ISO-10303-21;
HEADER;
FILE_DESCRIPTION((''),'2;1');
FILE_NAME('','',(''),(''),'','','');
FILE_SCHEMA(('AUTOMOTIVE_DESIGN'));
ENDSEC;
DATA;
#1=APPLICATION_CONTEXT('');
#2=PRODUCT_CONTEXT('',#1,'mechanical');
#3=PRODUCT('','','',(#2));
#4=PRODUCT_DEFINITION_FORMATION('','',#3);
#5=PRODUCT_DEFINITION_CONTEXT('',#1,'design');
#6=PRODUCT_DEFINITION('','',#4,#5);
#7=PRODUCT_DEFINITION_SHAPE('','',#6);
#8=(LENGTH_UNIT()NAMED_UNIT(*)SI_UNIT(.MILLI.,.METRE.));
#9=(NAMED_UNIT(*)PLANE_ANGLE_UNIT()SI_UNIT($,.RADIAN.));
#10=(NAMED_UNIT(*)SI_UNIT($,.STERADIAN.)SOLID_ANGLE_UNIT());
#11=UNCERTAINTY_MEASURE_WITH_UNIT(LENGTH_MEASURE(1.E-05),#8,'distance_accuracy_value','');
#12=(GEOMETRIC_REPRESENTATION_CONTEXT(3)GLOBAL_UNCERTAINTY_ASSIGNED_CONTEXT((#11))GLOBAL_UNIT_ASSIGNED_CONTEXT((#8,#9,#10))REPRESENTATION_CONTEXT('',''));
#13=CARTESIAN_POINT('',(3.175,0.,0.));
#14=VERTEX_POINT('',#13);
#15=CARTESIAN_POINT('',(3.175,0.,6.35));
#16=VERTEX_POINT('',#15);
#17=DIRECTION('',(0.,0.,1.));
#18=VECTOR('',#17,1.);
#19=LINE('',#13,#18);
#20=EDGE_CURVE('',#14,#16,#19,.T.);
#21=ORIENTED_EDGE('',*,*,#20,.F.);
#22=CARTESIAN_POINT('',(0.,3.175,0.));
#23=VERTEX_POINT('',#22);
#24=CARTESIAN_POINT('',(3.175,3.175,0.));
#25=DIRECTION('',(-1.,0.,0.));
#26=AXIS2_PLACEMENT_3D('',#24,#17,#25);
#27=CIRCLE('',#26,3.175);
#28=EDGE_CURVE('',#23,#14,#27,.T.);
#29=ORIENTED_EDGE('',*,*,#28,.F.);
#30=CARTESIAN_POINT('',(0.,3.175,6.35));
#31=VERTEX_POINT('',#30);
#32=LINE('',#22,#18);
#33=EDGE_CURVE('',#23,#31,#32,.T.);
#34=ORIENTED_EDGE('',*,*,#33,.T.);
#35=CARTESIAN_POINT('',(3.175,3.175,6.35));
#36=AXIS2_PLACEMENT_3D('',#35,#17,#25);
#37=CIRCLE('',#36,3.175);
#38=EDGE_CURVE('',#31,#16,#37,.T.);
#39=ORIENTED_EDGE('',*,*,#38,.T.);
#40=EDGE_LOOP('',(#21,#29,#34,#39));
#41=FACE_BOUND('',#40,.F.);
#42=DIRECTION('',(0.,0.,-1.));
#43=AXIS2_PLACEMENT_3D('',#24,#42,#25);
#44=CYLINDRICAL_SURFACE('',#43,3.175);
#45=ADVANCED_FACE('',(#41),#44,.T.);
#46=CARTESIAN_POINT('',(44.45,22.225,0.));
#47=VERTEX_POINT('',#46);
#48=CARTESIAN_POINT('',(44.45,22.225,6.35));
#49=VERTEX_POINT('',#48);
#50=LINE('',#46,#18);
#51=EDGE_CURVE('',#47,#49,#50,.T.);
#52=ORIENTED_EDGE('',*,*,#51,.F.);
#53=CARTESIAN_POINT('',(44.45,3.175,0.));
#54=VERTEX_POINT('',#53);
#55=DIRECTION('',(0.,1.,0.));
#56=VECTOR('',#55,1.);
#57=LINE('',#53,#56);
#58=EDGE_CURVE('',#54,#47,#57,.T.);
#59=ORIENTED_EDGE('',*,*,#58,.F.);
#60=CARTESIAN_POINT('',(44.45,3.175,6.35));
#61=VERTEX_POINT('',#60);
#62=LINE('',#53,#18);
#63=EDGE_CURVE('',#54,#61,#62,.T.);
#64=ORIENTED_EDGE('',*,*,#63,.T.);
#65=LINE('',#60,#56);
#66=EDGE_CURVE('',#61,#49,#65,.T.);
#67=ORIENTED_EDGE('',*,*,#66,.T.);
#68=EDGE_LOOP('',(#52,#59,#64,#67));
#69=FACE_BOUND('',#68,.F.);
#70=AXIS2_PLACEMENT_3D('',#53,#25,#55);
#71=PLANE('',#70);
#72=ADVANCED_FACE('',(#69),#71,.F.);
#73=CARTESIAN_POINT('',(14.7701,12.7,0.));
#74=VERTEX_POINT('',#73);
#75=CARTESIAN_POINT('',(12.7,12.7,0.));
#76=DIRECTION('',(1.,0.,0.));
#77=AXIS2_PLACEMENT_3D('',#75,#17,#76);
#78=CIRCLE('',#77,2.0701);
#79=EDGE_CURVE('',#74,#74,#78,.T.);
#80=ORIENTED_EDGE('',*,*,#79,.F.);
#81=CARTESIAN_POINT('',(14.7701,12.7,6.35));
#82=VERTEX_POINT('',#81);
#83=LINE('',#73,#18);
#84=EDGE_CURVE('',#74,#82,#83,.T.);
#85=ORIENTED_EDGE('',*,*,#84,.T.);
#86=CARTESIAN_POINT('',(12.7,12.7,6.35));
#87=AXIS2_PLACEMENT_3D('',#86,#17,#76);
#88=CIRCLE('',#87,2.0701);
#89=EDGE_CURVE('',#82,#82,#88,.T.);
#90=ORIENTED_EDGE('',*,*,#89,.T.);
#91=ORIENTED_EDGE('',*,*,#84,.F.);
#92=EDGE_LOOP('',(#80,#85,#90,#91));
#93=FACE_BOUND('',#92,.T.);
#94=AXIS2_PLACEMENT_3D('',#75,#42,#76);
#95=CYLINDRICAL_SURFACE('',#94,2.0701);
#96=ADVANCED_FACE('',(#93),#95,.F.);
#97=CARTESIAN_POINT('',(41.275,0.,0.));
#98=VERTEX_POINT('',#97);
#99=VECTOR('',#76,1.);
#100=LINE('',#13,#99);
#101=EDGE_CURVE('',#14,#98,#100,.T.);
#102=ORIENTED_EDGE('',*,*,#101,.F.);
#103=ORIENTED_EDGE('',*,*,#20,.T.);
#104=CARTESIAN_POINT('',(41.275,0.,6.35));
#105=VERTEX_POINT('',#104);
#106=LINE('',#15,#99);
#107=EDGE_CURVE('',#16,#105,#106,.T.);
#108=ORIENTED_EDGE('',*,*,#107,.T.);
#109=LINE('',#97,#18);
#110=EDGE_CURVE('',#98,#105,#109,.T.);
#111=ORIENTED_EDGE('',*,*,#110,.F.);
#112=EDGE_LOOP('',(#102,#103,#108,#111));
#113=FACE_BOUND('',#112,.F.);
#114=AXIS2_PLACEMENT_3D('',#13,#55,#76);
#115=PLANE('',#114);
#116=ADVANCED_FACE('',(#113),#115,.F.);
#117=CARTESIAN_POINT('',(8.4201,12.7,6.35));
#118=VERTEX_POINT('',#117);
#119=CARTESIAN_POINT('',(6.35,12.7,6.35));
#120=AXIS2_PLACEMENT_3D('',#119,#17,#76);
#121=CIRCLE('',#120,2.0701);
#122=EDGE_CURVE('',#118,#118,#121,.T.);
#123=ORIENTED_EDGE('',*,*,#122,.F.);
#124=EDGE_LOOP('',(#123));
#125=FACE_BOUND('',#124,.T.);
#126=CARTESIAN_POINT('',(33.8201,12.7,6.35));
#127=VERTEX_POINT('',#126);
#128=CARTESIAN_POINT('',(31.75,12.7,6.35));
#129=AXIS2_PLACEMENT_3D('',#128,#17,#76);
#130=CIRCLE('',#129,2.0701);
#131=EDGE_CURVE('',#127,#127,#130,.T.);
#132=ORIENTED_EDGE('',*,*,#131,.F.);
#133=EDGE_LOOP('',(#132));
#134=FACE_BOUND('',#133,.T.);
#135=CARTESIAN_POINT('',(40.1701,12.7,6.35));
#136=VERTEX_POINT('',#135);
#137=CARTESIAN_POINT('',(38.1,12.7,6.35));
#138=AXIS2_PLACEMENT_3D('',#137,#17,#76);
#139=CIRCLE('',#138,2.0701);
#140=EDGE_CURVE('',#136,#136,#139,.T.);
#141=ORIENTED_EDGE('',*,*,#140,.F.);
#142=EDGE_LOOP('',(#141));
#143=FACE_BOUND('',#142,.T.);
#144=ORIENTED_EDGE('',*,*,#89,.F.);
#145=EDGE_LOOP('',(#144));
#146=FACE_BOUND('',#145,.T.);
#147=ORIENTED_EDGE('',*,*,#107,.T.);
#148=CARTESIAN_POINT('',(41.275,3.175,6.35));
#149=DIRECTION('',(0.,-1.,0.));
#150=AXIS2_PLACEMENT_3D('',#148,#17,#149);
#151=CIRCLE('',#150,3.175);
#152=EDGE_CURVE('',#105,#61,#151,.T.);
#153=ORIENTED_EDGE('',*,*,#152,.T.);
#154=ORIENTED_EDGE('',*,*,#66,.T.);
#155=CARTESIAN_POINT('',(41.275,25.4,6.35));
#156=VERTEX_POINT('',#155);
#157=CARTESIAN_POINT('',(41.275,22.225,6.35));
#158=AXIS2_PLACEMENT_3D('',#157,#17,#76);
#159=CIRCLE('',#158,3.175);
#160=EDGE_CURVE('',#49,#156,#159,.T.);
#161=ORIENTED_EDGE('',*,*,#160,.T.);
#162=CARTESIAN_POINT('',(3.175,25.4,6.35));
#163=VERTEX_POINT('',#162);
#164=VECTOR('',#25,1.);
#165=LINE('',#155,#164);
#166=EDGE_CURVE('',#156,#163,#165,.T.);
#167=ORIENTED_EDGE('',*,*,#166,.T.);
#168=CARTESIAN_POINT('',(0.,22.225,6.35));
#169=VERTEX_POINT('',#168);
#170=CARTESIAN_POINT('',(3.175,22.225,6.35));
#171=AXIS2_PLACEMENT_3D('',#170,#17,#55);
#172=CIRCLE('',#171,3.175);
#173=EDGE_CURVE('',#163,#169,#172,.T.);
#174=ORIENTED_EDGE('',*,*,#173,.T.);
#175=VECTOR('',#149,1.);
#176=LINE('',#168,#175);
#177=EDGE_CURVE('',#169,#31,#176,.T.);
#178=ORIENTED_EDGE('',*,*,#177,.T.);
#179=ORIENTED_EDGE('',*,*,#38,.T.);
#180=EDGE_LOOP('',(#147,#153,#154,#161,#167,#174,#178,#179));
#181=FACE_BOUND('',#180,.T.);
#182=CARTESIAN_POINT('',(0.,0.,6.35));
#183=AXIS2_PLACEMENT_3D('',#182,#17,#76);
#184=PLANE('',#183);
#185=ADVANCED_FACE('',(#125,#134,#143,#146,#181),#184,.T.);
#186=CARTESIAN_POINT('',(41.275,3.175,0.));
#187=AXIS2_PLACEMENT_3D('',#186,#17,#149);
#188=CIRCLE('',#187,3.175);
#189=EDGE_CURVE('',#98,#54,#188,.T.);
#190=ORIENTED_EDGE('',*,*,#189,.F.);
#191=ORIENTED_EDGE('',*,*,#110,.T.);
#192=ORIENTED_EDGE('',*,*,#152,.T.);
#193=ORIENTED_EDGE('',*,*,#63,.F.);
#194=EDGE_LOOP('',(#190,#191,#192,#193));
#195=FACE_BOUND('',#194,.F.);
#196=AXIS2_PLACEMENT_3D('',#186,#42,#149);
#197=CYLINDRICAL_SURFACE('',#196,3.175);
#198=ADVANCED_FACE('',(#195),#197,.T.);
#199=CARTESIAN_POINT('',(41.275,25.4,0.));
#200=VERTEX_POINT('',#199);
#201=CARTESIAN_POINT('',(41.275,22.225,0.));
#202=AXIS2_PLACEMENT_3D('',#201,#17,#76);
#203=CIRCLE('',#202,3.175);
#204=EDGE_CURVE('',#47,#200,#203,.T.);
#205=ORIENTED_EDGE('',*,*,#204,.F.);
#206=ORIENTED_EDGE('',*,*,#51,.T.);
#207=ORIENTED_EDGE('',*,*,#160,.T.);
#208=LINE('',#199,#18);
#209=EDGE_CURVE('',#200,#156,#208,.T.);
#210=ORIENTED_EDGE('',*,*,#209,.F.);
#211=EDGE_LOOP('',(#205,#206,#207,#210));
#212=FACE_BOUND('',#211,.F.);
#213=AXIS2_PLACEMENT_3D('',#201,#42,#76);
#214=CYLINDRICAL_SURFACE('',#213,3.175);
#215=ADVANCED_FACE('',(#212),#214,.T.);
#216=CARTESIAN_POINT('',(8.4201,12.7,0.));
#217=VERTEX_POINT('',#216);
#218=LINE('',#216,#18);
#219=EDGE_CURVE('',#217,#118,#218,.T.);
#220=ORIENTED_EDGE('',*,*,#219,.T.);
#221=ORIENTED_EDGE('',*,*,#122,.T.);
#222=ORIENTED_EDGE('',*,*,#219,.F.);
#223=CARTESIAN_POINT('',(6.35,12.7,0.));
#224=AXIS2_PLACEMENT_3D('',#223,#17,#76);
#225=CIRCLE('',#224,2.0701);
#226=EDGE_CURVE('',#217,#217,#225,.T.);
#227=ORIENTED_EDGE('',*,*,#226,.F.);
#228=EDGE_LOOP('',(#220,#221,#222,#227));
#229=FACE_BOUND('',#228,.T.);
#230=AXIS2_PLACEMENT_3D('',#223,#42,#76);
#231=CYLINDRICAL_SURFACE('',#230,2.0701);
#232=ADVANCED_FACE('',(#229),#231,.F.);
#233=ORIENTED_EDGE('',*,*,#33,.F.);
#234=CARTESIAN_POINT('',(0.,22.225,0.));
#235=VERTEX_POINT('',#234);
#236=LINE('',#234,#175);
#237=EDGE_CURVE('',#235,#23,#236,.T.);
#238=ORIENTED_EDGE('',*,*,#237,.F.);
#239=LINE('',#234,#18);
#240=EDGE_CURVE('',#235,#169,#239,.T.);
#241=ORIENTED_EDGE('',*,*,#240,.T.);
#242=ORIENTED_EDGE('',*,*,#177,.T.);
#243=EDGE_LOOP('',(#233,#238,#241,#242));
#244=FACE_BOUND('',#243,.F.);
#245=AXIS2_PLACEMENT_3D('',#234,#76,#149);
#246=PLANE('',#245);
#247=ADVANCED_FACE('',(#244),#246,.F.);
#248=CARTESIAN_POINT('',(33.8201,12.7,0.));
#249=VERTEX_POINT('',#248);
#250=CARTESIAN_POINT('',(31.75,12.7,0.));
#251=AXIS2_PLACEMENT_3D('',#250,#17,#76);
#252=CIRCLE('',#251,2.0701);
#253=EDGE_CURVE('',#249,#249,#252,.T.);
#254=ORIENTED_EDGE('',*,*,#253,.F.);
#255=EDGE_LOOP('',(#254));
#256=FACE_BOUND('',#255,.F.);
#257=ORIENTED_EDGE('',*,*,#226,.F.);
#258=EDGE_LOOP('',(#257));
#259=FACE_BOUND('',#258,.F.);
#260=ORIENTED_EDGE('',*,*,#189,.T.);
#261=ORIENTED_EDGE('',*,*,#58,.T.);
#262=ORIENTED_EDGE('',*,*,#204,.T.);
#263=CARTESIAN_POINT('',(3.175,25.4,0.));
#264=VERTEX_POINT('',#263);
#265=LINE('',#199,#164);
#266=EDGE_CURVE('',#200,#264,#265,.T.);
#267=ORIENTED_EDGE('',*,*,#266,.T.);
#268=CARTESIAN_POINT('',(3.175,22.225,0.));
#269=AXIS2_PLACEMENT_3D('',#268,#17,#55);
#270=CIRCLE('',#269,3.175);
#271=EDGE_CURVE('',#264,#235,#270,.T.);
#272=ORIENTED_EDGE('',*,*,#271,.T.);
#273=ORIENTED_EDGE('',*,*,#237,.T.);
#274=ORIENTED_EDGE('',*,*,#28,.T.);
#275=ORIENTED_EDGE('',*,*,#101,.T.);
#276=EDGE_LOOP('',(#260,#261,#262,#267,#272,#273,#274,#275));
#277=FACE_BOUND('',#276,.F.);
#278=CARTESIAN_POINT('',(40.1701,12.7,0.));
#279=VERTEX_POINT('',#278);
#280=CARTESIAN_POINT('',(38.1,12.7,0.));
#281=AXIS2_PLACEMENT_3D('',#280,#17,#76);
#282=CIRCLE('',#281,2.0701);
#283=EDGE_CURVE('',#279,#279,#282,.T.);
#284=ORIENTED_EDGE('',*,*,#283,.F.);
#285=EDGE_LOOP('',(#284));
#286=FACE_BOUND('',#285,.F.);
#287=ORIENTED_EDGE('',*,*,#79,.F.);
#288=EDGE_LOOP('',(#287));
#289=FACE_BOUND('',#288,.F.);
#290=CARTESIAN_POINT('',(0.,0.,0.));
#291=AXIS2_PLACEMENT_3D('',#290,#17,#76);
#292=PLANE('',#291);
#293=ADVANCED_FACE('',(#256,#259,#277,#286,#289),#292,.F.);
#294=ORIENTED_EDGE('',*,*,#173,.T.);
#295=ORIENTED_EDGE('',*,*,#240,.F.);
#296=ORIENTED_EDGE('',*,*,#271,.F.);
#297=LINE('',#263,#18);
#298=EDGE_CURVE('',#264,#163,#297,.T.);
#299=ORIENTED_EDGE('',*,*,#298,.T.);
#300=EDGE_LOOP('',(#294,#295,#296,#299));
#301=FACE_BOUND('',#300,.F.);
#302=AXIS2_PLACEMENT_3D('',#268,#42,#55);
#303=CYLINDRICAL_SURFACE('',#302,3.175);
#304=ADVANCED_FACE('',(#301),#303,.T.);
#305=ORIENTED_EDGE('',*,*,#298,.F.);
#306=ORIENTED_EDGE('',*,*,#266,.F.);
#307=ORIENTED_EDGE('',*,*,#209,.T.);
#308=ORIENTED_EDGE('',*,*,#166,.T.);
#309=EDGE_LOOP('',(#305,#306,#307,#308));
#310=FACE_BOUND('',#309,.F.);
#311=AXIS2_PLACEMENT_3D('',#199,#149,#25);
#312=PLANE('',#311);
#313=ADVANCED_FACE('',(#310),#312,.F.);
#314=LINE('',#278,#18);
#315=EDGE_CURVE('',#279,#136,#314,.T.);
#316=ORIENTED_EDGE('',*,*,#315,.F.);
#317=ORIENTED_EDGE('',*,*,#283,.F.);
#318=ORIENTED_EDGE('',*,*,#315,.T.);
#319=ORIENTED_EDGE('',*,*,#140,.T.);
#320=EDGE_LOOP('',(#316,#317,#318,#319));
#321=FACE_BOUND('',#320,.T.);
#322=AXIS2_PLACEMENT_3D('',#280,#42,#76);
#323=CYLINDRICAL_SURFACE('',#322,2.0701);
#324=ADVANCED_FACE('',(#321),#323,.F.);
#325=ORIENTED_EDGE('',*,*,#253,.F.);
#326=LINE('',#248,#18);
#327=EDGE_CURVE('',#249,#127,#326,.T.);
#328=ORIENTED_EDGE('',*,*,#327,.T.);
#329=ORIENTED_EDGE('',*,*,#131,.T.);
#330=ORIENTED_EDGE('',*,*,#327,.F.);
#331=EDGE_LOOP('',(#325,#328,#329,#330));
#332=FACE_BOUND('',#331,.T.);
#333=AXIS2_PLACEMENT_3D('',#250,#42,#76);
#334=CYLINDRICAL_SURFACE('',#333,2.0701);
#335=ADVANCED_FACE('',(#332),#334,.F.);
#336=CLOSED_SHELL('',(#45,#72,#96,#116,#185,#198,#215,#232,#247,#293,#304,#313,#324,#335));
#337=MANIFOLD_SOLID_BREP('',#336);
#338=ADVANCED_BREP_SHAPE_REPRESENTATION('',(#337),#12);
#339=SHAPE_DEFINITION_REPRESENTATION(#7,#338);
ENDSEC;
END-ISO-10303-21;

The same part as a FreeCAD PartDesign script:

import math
import FreeCAD as App
import Part
import Sketcher

V = App.Vector
Q = App.Units.Quantity

doc = App.newDocument("Part")
body = doc.addObject("PartDesign::Body", "Body")

# Sketch on XY plane
sketch1 = doc.addObject("Sketcher::SketchObject", "Sketch")
body.addObject(sketch1)
sketch1.AttachmentSupport = (doc.XY_Plane, [""])
sketch1.MapMode = "FlatFace"
sketch1.addGeometry([
    Part.ArcOfCircle(Part.Circle(V(3.2, 3.2, 0), V(0, 0, 1), 3.2), math.radians(180), math.radians(270)),  # 0
    Part.LineSegment(V(3.2, 0, 0), V(41.3, 0, 0)),  # 1
    Part.ArcOfCircle(Part.Circle(V(41.3, 3.2, 0), V(0, 0, 1), 3.2), math.radians(-90), math.radians(0)),  # 2
    Part.LineSegment(V(44.5, 3.2, 0), V(44.5, 22.2, 0)),  # 3
    Part.ArcOfCircle(Part.Circle(V(41.3, 22.2, 0), V(0, 0, 1), 3.2), math.radians(0), math.radians(90)),  # 4
    Part.LineSegment(V(41.3, 25.4, 0), V(3.2, 25.4, 0)),  # 5
    Part.ArcOfCircle(Part.Circle(V(3.2, 22.2, 0), V(0, 0, 1), 3.2), math.radians(90), math.radians(180)),  # 6
    Part.LineSegment(V(0, 22.2, 0), V(0, 3.2, 0)),  # 7
    Part.Circle(V(6.3, 12.7, 0), V(0, 0, 1), 2.1),  # 8
    Part.Circle(V(12.7, 12.7, 0), V(0, 0, 1), 2.1),  # 9
    Part.Circle(V(31.8, 12.7, 0), V(0, 0, 1), 2.1),  # 10
    Part.Circle(V(38.1, 12.7, 0), V(0, 0, 1), 2.1),  # 11
], False)
sketch1.addConstraint([
    Sketcher.Constraint("Tangent", 0, 2, 1, 1),
    Sketcher.Constraint("Tangent", 1, 2, 2, 1),
    Sketcher.Constraint("Tangent", 2, 2, 3, 1),
    Sketcher.Constraint("Tangent", 3, 2, 4, 1),
    Sketcher.Constraint("Tangent", 4, 2, 5, 1),
    Sketcher.Constraint("Tangent", 5, 2, 6, 1),
    Sketcher.Constraint("Tangent", 6, 2, 7, 1),
    Sketcher.Constraint("Tangent", 7, 2, 0, 1),
    Sketcher.Constraint("Horizontal", 1),
    Sketcher.Constraint("Vertical", 3),
    Sketcher.Constraint("Horizontal", 5),
    Sketcher.Constraint("Vertical", 7),
    Sketcher.Constraint("Equal", 0, 2),
    Sketcher.Constraint("Equal", 2, 4),
    Sketcher.Constraint("Equal", 4, 6),
    Sketcher.Constraint("Equal", 8, 9),
    Sketcher.Constraint("Equal", 9, 10),
    Sketcher.Constraint("Equal", 10, 11),
    Sketcher.Constraint("PointOnObject", 0, 2, -1),
    Sketcher.Constraint("PointOnObject", 6, 2, -2),
    Sketcher.Constraint("Horizontal", 8, 3, 9, 3),
    Sketcher.Constraint("Horizontal", 9, 3, 10, 3),
    Sketcher.Constraint("Horizontal", 10, 3, 11, 3),
    Sketcher.Constraint("Diameter", 8, Q("0.163 in")),
    Sketcher.Constraint("DistanceY", -1, 1, 4, 2, Q("1 in")),
    Sketcher.Constraint("Radius", 0, Q("0.125 in")),
    Sketcher.Constraint("DistanceX", 8, 3, 10, 3, Q("1 in")),
    Sketcher.Constraint("DistanceX", 9, 3, 11, 3, Q("1 in")),
    Sketcher.Constraint("DistanceY", -1, 1, 8, 3, Q("0.5 in")),
    Sketcher.Constraint("DistanceX", -1, 1, 9, 3, Q("0.5 in")),
    Sketcher.Constraint("DistanceX", 10, 3, 2, 2, Q("0.5 in")),
    Sketcher.Constraint("DistanceX", -1, 1, 8, 3, Q("0.25 in")),
])
pad1 = doc.addObject("PartDesign::Pad", "Pad")
body.addObject(pad1)
pad1.Profile = sketch1
pad1.Length = Q("0.25 in")

doc.recompute()
